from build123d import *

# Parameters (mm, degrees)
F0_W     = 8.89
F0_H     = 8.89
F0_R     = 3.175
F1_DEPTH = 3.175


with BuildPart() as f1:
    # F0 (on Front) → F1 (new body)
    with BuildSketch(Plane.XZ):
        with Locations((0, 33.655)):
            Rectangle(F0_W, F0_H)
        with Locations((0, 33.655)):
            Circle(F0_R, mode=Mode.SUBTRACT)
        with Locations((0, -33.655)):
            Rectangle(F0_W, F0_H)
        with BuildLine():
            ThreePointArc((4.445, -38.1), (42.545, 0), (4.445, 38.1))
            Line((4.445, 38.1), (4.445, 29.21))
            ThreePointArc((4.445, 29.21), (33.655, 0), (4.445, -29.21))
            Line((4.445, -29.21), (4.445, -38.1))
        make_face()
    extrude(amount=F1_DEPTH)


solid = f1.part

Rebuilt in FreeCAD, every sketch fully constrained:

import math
import FreeCAD as App
import Part
import Sketcher
Q = App.Units.Quantity

doc = App.newDocument("Part")
params = doc.addObject("Spreadsheet::Sheet", "Params")
for row, (alias, value) in enumerate([
    ("sketch1_radius", "1.5 in"),
    ("sketch1_diameter", "0.25 in"),
    ("sketch1_radius2", "1.15 in"),
    ("pad1_length", "0.125 in"),
], start=1):
    params.set(f"A{row}", alias)
    params.set(f"B{row}", "=" + value)
    params.setAlias(f"B{row}", alias)

body = doc.addObject("PartDesign::Body", "Body")

# Sketch on XZ plane
sketch1 = body.newObject("Sketcher::SketchObject", "Sketch")
sketch1.AttachmentSupport = (doc.getObject("XZ_Plane"), [""])
sketch1.MapMode = "FlatFace"
sketch1.addGeometry([
    Part.LineSegment(App.Vector(-4.4, 38.1, 0), App.Vector(-4.4, 29.2, 0)),  # 0
    Part.LineSegment(App.Vector(-4.4, 29.2, 0), App.Vector(4.4, 29.2, 0)),  # 1
    Part.ArcOfCircle(Part.Circle(App.Vector(4.4, 0, 0), App.Vector(0, 0, 1), 29.2), math.radians(-90), math.radians(90)),  # 2
    Part.LineSegment(App.Vector(4.4, -29.2, 0), App.Vector(-4.4, -29.2, 0)),  # 3
    Part.LineSegment(App.Vector(-4.4, -29.2, 0), App.Vector(-4.4, -38.1, 0)),  # 4
    Part.LineSegment(App.Vector(-4.4, -38.1, 0), App.Vector(4.4, -38.1, 0)),  # 5
    Part.ArcOfCircle(Part.Circle(App.Vector(4.4, 0, 0), App.Vector(0, 0, 1), 38.1), math.radians(-90), math.radians(90)),  # 6
    Part.LineSegment(App.Vector(4.4, 38.1, 0), App.Vector(-4.4, 38.1, 0)),  # 7
    Part.Circle(App.Vector(0, 33.7, 0), App.Vector(0, 0, 1), 3.2),  # 8
], False)
sketch1.addConstraint([
    Sketcher.Constraint("Coincident", 0, 2, 1, 1),
    Sketcher.Constraint("Tangent", 1, 2, 2, 2),
    Sketcher.Constraint("Tangent", 2, 1, 3, 1),
    Sketcher.Constraint("Coincident", 3, 2, 4, 1),
    Sketcher.Constraint("Coincident", 4, 2, 5, 1),
    Sketcher.Constraint("Tangent", 5, 2, 6, 1),
    Sketcher.Constraint("Tangent", 6, 2, 7, 1),
    Sketcher.Constraint("Coincident", 7, 2, 0, 1),
    Sketcher.Constraint("Vertical", 0),
    Sketcher.Constraint("Horizontal", 1),
    Sketcher.Constraint("Horizontal", 3),
    Sketcher.Constraint("Vertical", 4),
    Sketcher.Constraint("Horizontal", 5),
    Sketcher.Constraint("Horizontal", 7),
    Sketcher.Constraint("Coincident", 6, 3, 2, 3),
    Sketcher.Constraint("Symmetric", 0, 2, 2, 1, -1, 1),
    Sketcher.Constraint("PointOnObject", 8, 3, -2),
    Sketcher.Constraint("Vertical", 0, 2, 3, 2),
    Sketcher.Constraint("Equal", 7, 0),
    Sketcher.Constraint("Radius", 6, Q("1.5 in")),
    Sketcher.Constraint("Diameter", 8, Q("0.25 in")),
    Sketcher.Constraint("Radius", 2, Q("1.15 in")),
    Sketcher.Constraint("DistanceY", -1, 1, 8, 3, Q("1.325 in")),
])
sketch1.setExpression("Constraints[19]", "Params.sketch1_radius")
sketch1.setExpression("Constraints[20]", "Params.sketch1_diameter")
sketch1.setExpression("Constraints[21]", "Params.sketch1_radius2")
pad1 = body.newObject("PartDesign::Pad", "Pad")
pad1.Profile = sketch1
pad1.setExpression("Length", "Params.pad1_length")

doc.recompute()
